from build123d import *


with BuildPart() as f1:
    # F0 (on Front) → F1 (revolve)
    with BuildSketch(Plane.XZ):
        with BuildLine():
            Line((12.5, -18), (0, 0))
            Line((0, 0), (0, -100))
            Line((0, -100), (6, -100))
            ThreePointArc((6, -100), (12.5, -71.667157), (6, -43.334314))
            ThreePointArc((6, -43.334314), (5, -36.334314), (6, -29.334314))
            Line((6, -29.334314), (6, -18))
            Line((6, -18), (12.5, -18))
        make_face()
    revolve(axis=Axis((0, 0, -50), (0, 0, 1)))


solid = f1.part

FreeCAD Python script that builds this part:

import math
import FreeCAD as App
import Part
import Sketcher
from FreeCAD import Vector

doc = App.newDocument("Part")
body = doc.addObject("PartDesign::Body", "Body")

sketch1 = doc.addObject("Sketcher::SketchObject", "Sketch")
body.addObject(sketch1)
sketch1.AttachmentSupport = (doc.XZ_Plane, [""])
sketch1.MapMode = "FlatFace"
sketch1.addGeometry(Part.LineSegment(Vector(12, -18, 0), Vector(0, 0, 0)), False)
sketch1.addGeometry(Part.LineSegment(Vector(0, 0, 0), Vector(0, -100, 0)), False)
sketch1.addGeometry(Part.LineSegment(Vector(0, -100, 0), Vector(6, -100, 0)), False)
sketch1.addGeometry(Part.ArcOfCircle(Part.Circle(Vector(-52, -72, 0), Vector(0, 0, 1), 65), math.radians(-26), math.radians(26)), False)
sketch1.addGeometry(Part.ArcOfCircle(Part.Circle(Vector(30, -36, 0), Vector(0, 0, 1), 25), math.radians(164), math.radians(196)), False)
sketch1.addGeometry(Part.LineSegment(Vector(6, -29, 0), Vector(6, -18, 0)), False)
sketch1.addGeometry(Part.LineSegment(Vector(6, -18, 0), Vector(12, -18, 0)), False)
sketch1.addConstraint(Sketcher.Constraint("Coincident", 0, 2, 1, 1))
sketch1.addConstraint(Sketcher.Constraint("Coincident", 1, 2, 2, 1))
sketch1.addConstraint(Sketcher.Constraint("Coincident", 2, 2, 3, 1))
sketch1.addConstraint(Sketcher.Constraint("Coincident", 3, 2, 4, 2))
sketch1.addConstraint(Sketcher.Constraint("Coincident", 4, 1, 5, 1))
sketch1.addConstraint(Sketcher.Constraint("Coincident", 5, 2, 6, 1))
sketch1.addConstraint(Sketcher.Constraint("Coincident", 6, 2, 0, 1))
sketch1.addConstraint(Sketcher.Constraint("Vertical", 1))
sketch1.addConstraint(Sketcher.Constraint("Horizontal", 2))
sketch1.addConstraint(Sketcher.Constraint("Vertical", 5))
sketch1.addConstraint(Sketcher.Constraint("Horizontal", 6))
sketch1.addConstraint(Sketcher.Constraint("Coincident", 0, 2, -1, 1))
sketch1.addConstraint(Sketcher.Constraint("Vertical", 2, 2, 3, 2))
sketch1.addConstraint(Sketcher.Constraint("Vertical", 3, 2, 4, 1))
sketch1.addConstraint(Sketcher.Constraint("Radius", 3, 64.999999))
sketch1.addConstraint(Sketcher.Constraint("Radius", 4, 25.0))
sketch1.addConstraint(Sketcher.Constraint("DistanceX", 2, 1, 2, 2, 6.0))
sketch1.addConstraint(Sketcher.Constraint("DistanceY", 1, 2, 1, 1, 100.0))
sketch1.addConstraint(Sketcher.Constraint("DistanceX", 6, 1, 6, 2, 6.5))
sketch1.addConstraint(Sketcher.Constraint("DistanceX", -1, 1, 4, 3, 30.0))
sketch1.addConstraint(Sketcher.Constraint("DistanceY", 5, 2, -1, 1, 18.0))
sketch1.addConstraint(Sketcher.Constraint("DistanceX", 3, 3, -1, 1, 52.499999))
revolution = doc.addObject("PartDesign::Revolution", "Revolution")
body.addObject(revolution)
revolution.Profile = sketch1
revolution.ReferenceAxis = (sketch1, ["V_Axis"])
revolution.Angle = 360

doc.recompute()
